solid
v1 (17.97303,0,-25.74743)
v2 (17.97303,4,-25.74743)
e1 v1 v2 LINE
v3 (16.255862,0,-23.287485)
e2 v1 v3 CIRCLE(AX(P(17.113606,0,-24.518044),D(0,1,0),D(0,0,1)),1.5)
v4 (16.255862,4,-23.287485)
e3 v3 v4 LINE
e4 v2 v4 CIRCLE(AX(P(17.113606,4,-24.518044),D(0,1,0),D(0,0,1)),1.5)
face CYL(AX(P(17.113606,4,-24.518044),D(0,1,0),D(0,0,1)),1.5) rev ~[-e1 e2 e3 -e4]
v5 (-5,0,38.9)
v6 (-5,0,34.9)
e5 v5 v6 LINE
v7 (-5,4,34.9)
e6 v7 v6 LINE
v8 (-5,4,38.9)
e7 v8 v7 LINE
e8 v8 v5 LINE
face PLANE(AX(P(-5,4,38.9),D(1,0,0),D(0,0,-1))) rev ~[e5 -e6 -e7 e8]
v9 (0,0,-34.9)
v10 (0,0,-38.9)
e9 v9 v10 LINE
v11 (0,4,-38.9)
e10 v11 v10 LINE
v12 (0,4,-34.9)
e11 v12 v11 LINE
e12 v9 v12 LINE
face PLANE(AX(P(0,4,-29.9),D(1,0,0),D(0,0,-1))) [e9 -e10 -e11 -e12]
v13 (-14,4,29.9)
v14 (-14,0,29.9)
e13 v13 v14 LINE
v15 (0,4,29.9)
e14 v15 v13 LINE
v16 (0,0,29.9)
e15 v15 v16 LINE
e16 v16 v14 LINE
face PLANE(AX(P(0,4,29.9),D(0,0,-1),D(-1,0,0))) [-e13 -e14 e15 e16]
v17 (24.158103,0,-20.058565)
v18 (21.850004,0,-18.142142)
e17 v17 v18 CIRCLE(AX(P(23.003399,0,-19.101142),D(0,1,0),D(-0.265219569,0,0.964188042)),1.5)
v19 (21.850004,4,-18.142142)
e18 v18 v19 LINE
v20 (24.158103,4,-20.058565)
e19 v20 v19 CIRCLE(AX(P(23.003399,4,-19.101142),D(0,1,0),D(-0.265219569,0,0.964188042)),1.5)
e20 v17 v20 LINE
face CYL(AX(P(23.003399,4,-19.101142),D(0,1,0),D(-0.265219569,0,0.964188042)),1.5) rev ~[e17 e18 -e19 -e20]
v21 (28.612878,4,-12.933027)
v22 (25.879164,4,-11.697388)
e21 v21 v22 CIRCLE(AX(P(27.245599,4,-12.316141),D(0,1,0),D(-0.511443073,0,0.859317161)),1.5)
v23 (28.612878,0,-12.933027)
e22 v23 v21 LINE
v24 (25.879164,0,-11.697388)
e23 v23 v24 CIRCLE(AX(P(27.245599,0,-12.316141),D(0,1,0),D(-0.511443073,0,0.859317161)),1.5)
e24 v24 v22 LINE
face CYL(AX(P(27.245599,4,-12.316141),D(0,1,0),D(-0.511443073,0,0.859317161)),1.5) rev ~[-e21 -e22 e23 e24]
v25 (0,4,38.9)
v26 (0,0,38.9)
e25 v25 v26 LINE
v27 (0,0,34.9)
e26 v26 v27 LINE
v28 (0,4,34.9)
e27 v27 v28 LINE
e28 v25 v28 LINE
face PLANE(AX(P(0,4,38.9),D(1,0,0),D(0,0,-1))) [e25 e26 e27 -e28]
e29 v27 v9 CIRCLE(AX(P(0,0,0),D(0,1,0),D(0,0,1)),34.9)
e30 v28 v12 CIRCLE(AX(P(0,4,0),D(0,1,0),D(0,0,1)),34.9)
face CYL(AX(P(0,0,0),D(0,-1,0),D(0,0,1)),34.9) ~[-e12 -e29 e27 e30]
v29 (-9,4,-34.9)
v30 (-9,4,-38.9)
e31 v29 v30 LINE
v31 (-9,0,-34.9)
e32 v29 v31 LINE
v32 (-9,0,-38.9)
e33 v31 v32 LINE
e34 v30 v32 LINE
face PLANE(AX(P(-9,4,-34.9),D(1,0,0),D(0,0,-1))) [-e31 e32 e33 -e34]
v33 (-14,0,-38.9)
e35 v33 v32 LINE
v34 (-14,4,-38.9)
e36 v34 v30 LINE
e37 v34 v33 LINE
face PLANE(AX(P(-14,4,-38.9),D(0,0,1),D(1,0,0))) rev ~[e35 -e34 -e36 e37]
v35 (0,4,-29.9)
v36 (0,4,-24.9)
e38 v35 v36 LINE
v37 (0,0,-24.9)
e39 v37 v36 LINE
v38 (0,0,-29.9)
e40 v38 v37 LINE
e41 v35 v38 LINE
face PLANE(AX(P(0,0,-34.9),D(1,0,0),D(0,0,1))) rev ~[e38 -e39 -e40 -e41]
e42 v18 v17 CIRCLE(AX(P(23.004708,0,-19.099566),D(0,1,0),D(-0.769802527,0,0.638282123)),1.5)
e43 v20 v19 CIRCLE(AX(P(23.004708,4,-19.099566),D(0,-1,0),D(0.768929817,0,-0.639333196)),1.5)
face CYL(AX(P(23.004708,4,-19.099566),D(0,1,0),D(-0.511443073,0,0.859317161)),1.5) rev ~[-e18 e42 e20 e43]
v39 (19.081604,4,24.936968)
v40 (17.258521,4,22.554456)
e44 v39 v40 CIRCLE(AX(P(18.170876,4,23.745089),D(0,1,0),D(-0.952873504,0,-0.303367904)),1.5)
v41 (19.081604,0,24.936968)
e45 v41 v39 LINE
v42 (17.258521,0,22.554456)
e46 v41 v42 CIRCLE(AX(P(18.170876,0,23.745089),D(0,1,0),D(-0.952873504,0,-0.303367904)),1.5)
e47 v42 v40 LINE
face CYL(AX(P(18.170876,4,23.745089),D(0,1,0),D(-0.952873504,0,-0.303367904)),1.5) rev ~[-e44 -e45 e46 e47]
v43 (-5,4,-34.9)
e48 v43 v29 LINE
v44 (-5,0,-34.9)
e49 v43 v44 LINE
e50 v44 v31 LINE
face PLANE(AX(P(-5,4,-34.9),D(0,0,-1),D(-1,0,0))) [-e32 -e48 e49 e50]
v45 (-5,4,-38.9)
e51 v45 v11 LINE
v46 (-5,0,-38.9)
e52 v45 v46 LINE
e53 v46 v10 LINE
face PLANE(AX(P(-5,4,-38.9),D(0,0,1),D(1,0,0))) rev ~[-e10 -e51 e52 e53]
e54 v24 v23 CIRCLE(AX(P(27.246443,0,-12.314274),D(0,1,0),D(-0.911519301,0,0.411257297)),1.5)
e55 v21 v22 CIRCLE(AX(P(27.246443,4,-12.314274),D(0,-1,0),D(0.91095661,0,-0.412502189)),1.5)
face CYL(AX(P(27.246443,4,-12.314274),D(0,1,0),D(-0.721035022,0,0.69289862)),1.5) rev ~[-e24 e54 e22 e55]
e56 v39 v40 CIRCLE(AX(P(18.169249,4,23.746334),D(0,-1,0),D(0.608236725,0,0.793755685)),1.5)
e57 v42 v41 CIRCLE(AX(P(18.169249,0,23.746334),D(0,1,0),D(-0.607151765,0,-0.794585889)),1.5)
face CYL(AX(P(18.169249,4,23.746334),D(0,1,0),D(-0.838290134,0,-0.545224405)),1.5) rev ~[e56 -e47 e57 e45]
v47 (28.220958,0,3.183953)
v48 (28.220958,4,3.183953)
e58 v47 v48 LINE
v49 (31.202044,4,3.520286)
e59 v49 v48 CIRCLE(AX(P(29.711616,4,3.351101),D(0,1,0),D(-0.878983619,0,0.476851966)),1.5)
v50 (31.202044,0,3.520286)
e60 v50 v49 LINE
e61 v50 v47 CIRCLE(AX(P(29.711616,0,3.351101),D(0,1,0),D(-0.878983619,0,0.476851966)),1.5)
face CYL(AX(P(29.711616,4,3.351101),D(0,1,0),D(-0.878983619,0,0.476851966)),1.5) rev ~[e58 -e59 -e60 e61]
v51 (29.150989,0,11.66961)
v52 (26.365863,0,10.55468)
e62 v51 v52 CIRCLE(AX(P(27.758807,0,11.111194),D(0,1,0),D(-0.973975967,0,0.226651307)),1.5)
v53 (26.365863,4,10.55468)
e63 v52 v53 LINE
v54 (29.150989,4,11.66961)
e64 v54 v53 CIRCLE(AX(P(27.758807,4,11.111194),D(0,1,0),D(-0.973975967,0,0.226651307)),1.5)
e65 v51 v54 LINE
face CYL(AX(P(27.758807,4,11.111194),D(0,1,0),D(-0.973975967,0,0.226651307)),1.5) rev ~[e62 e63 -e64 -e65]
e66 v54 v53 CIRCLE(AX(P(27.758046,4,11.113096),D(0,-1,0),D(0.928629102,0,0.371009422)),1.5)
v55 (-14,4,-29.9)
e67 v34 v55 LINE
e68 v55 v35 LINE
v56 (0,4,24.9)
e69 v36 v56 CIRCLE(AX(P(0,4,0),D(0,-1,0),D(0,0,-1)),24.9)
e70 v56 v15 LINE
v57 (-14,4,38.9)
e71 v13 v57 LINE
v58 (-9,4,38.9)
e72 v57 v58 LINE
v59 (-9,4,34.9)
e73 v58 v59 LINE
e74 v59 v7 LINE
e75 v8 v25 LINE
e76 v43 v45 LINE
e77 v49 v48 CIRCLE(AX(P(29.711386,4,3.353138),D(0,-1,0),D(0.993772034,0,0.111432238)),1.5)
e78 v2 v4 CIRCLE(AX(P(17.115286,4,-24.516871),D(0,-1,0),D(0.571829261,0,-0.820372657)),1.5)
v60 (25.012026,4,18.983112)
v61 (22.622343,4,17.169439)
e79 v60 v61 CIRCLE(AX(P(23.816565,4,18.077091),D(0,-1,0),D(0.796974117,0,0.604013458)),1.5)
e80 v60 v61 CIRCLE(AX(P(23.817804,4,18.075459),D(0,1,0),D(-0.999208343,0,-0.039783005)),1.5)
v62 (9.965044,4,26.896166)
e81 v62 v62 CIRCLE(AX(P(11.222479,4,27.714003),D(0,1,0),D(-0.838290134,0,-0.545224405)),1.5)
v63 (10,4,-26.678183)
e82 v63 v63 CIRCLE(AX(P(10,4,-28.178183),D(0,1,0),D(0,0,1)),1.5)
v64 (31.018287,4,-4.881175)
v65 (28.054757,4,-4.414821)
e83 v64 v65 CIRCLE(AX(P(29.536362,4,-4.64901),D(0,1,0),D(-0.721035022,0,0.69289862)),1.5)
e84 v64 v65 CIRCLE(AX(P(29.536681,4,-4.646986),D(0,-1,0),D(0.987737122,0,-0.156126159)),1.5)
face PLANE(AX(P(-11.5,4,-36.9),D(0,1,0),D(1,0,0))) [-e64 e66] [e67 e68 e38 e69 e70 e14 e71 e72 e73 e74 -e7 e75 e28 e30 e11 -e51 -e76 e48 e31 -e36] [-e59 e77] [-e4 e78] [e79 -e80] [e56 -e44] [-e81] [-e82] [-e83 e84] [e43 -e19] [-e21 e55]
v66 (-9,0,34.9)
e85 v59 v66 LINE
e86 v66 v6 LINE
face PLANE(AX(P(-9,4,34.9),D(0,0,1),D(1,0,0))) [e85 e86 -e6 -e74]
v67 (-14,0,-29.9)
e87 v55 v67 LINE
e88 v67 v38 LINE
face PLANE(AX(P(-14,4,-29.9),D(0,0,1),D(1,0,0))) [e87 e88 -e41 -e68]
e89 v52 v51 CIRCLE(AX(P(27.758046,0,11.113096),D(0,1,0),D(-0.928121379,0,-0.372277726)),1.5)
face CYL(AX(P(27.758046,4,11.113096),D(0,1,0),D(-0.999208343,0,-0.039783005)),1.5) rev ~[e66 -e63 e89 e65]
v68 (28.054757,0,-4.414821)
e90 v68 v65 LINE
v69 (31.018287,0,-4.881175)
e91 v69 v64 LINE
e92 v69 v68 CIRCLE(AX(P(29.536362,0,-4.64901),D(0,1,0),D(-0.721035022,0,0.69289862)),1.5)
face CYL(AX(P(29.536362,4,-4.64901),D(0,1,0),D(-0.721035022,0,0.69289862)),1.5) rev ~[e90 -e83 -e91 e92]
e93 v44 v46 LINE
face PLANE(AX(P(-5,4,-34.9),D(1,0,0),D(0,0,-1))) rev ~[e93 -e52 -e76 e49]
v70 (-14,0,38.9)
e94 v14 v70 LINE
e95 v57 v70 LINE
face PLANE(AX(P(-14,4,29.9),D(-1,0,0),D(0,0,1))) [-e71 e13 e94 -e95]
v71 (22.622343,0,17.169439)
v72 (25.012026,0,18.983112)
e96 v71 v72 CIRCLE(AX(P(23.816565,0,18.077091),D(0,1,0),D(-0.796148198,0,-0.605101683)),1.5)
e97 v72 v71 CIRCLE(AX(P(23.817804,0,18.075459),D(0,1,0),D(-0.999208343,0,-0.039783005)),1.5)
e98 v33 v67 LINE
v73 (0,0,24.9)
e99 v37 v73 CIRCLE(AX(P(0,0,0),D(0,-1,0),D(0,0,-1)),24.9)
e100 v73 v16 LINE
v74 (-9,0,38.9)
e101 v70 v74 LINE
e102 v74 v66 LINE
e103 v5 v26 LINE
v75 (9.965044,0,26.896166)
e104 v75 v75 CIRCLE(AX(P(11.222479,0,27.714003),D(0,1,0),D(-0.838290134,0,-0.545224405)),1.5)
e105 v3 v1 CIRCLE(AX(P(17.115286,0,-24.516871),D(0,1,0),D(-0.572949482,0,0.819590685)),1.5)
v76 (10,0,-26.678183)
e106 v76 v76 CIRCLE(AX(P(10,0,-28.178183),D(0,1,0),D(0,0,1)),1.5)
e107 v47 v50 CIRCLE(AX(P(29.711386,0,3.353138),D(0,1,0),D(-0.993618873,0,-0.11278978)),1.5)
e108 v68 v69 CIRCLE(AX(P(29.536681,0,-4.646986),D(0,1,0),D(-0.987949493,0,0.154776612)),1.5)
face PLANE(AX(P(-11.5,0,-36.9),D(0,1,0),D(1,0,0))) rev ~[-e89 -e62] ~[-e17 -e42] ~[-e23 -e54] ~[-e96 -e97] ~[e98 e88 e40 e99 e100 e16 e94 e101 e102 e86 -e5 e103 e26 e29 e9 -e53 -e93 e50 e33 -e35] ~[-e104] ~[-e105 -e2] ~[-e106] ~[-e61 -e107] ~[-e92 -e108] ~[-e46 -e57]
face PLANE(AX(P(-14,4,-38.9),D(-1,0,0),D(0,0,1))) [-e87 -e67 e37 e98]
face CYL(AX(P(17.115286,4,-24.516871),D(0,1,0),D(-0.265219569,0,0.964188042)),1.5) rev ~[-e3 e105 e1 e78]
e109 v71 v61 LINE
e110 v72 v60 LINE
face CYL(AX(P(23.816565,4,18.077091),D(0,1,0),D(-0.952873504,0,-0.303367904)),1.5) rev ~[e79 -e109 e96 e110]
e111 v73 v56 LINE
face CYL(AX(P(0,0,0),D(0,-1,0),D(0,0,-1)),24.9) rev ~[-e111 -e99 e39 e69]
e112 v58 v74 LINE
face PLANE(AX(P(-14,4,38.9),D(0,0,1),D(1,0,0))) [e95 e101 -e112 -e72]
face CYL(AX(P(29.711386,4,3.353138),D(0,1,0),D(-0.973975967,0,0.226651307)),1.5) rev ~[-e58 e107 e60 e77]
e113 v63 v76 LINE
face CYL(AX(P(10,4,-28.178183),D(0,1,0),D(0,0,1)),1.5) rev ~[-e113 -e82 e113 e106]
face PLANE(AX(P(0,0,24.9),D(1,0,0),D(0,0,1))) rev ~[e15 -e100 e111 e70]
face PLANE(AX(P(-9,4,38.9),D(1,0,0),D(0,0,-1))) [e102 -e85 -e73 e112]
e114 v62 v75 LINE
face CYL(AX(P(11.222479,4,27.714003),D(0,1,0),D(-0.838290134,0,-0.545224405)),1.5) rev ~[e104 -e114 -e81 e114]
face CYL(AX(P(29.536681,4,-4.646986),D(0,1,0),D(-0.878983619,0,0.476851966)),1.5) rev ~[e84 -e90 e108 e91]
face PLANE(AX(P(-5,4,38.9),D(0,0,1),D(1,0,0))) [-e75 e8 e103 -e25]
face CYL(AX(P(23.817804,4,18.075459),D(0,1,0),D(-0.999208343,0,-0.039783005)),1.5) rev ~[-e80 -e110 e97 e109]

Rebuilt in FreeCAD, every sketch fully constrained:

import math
import FreeCAD as App
import Part
import Sketcher

V = App.Vector


def add_polygon(sketch, points):
    """Adds a closed chain of lines whose ends are joined by coincident constraints."""
    first, n = sketch.GeometryCount, len(points)
    for a, b in zip(points, points[1:] + points[:1]):
        sketch.addGeometry(Part.LineSegment(App.Vector(*a, 0), App.Vector(*b, 0)), False)
    for i in range(n):
        sketch.addConstraint(Sketcher.Constraint("Coincident", first + i, 2, first + (i + 1) % n, 1))

doc = App.newDocument("Part")
params = doc.addObject("Spreadsheet::Sheet", "Params")
for row, (alias, value) in enumerate([
    ("sketch1_radius", "34.9 mm"),
    ("sketch1_radius2", "24.9 mm"),
    ("pad1_length", "4 mm"),
    ("sketch2_width", "14 mm"),
    ("sketch2_width2", "5 mm"),
    ("sketch2_height", "9 mm"),
    ("pad2_length", "4 mm"),
    ("sketch3_diameter", "3 mm"),
], start=1):
    params.set(f"A{row}", alias)
    params.set(f"B{row}", "=" + value)
    params.setAlias(f"B{row}", alias)

body = doc.addObject("PartDesign::Body", "Body")

sketch1 = body.newObject("Sketcher::SketchObject", "Sketch")
sketch1.AttachmentSupport = (doc.getObject("XZ_Plane"), [""])
sketch1.MapMode = "FlatFace"
sketch1.addGeometry(Part.ArcOfCircle(Part.Circle(V(0, 0, 0), V(0, 0, 1), 34.9), math.radians(-90), math.radians(90)), False)
sketch1.addGeometry(Part.LineSegment(V(0, -34.9, 0), V(0, -24.9, 0)), False)
sketch1.addGeometry(Part.ArcOfCircle(Part.Circle(V(0, 0, 0), V(0, 0, 1), 24.9), math.radians(-90), math.radians(90)), False)
sketch1.addGeometry(Part.LineSegment(V(0, 24.9, 0), V(0, 34.9, 0)), False)
sketch1.addConstraint(Sketcher.Constraint("Coincident", 0, 1, 1, 1))
sketch1.addConstraint(Sketcher.Constraint("Coincident", 1, 2, 2, 1))
sketch1.addConstraint(Sketcher.Constraint("Coincident", 2, 2, 3, 1))
sketch1.addConstraint(Sketcher.Constraint("Coincident", 3, 2, 0, 2))
sketch1.addConstraint(Sketcher.Constraint("Vertical", 1))
sketch1.addConstraint(Sketcher.Constraint("Vertical", 3))
sketch1.addConstraint(Sketcher.Constraint("Coincident", 0, 3, -1, 1))
sketch1.addConstraint(Sketcher.Constraint("Coincident", 2, 3, -1, 1))
sketch1.addConstraint(Sketcher.Constraint("PointOnObject", 0, 1, -2))
sketch1.addConstraint(Sketcher.Constraint("PointOnObject", 2, 2, -2))
sketch1.addConstraint(Sketcher.Constraint("Radius", 0, 34.9))
sketch1.addConstraint(Sketcher.Constraint("Radius", 2, 24.9))
sketch1.setExpression("Constraints[10]", "Params.sketch1_radius")
sketch1.setExpression("Constraints[11]", "Params.sketch1_radius2")
pad1 = body.newObject("PartDesign::Pad", "Pad")
pad1.Profile = sketch1
pad1.setExpression("Length", "Params.pad1_length")
pad1.Reversed = True

sketch2 = body.newObject("Sketcher::SketchObject", "Sketch001")
sketch2.AttachmentSupport = (doc.getObject("XZ_Plane"), [""])
sketch2.MapMode = "FlatFace"
sketch2.AttachmentOffset = App.Placement(V(0, 0, -4), App.Rotation())
add_polygon(sketch2, [(-14, -38.9), (-14, -29.9), (0, -29.9), (0, -38.9), (-5, -38.9), (-5, -34.9), (-9, -34.9), (-9, -38.9)])
add_polygon(sketch2, [(0, 29.9), (-14, 29.9), (-14, 38.9), (-9, 38.9), (-9, 34.9), (-5, 34.9), (-5, 38.9), (0, 38.9)])
sketch2.addConstraint(Sketcher.Constraint("Vertical", 0))
sketch2.addConstraint(Sketcher.Constraint("Horizontal", 1))
sketch2.addConstraint(Sketcher.Constraint("Vertical", 2))
sketch2.addConstraint(Sketcher.Constraint("Horizontal", 3))
sketch2.addConstraint(Sketcher.Constraint("Vertical", 4))
sketch2.addConstraint(Sketcher.Constraint("Horizontal", 5))
sketch2.addConstraint(Sketcher.Constraint("Vertical", 6))
sketch2.addConstraint(Sketcher.Constraint("Horizontal", 7))
sketch2.addConstraint(Sketcher.Constraint("Horizontal", 8))
sketch2.addConstraint(Sketcher.Constraint("Vertical", 9))
sketch2.addConstraint(Sketcher.Constraint("Horizontal", 10))
sketch2.addConstraint(Sketcher.Constraint("Vertical", 11))
sketch2.addConstraint(Sketcher.Constraint("Horizontal", 12))
sketch2.addConstraint(Sketcher.Constraint("Vertical", 13))
sketch2.addConstraint(Sketcher.Constraint("Horizontal", 14))
sketch2.addConstraint(Sketcher.Constraint("Vertical", 15))
sketch2.addConstraint(Sketcher.Constraint("Symmetric", 2, 2, 14, 2, -1, 1))
sketch2.addConstraint(Sketcher.Constraint("Symmetric", 0, 2, 8, 2, -1))
sketch2.addConstraint(Sketcher.Constraint("Symmetric", 6, 2, 10, 2, -1))
sketch2.addConstraint(Sketcher.Constraint("Symmetric", 4, 2, 12, 2, -1))
sketch2.addConstraint(Sketcher.Constraint("PointOnObject", 1, 2, -2))
sketch2.addConstraint(Sketcher.Constraint("Horizontal", 3, 2, 6, 2))
sketch2.addConstraint(Sketcher.Constraint("Equal", 3, 7))
sketch2.addConstraint(Sketcher.Constraint("Equal", 12, 4))
sketch2.addConstraint(Sketcher.Constraint("DistanceX", 1, 1, 1, 2, 14.0))
sketch2.addConstraint(Sketcher.Constraint("DistanceX", 3, 2, 3, 1, 5.0))
sketch2.addConstraint(Sketcher.Constraint("DistanceY", 0, 1, 0, 2, 9.0))
sketch2.addConstraint(Sketcher.Constraint("DistanceY", 0, 2, -1, 1, 29.9))
sketch2.setExpression("Constraints[40]", "Params.sketch2_width")
sketch2.setExpression("Constraints[41]", "Params.sketch2_width2")
sketch2.setExpression("Constraints[42]", "Params.sketch2_height")
pad2 = body.newObject("PartDesign::Pad", "Pad001")
pad2.Profile = sketch2
pad2.setExpression("Length", "Params.pad2_length")

sketch3 = body.newObject("Sketcher::SketchObject", "Sketch002")
sketch3.AttachmentSupport = (doc.getObject("XZ_Plane"), [""])
sketch3.MapMode = "FlatFace"
sketch3.AttachmentOffset = App.Placement(V(0, 0, -4), App.Rotation())
sketch3.addGeometry(Part.Circle(V(10, -28.178183, 0), V(0, 0, 1), 1.5), False)
sketch3.addGeometry(Part.Circle(V(17.113606, -24.518044, 0), V(0, 0, 1), 1.5), False)
sketch3.addConstraint(Sketcher.Constraint("Equal", 0, 1))
sketch3.addConstraint(Sketcher.Constraint("Diameter", 0, 3.0))
sketch3.addConstraint(Sketcher.Constraint("DistanceX", -1, 1, 0, 3, 10.0))
sketch3.addConstraint(Sketcher.Constraint("DistanceY", 0, 3, 1, 3, 3.660139))
sketch3.addConstraint(Sketcher.Constraint("DistanceY", 0, 3, -1, 1, 28.178183))
sketch3.addConstraint(Sketcher.Constraint("DistanceX", -1, 1, 1, 3, 17.113606))
sketch3.setExpression("Constraints[1]", "Params.sketch3_diameter")
pocket1 = body.newObject("PartDesign::Pocket", "Pocket")
pocket1.Profile = sketch3
pocket1.Type = "ThroughAll"
pocket1.Reversed = True
doc.recompute()

polarpattern = body.newObject("PartDesign::PolarPattern", "PolarPattern")
polarpattern.Originals = [pocket1]
polarpattern.Axis = (doc.getObject("Y_Axis"), [""])
polarpattern.Angle = 123.04
polarpattern.Occurrences = 9
polarpattern.Reversed = True
body.Tip = polarpattern

doc.recompute()
